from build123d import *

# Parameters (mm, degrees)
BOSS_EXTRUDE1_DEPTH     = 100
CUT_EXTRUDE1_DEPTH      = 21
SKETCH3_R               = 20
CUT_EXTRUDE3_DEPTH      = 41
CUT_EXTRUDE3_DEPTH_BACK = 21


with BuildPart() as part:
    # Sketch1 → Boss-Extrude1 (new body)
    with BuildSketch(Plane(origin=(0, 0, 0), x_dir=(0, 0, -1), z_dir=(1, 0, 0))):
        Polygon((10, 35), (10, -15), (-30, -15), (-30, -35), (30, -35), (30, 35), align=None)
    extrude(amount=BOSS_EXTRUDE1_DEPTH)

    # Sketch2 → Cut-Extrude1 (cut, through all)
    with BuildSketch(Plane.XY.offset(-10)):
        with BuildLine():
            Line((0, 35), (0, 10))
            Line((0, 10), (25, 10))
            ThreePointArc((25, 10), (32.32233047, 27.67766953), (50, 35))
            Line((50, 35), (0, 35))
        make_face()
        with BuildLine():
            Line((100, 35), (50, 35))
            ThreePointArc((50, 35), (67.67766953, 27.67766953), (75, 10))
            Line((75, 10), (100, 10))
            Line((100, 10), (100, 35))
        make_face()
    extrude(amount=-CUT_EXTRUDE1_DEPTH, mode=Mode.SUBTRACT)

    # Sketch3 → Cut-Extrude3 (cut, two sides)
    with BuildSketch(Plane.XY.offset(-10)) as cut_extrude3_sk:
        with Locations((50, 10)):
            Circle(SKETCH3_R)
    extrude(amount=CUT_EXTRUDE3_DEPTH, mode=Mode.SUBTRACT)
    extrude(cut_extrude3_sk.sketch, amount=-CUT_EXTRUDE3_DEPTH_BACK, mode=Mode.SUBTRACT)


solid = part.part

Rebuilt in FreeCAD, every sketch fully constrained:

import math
import FreeCAD as App
import Part
import Sketcher
from FreeCAD import Vector
Q = App.Units.Quantity


def add_polygon(sketch, points):
    """Adds a closed chain of lines whose ends are joined by coincident constraints."""
    first, n = sketch.GeometryCount, len(points)
    for a, b in zip(points, points[1:] + points[:1]):
        sketch.addGeometry(Part.LineSegment(App.Vector(*a, 0), App.Vector(*b, 0)), False)
    for i in range(n):
        sketch.addConstraint(Sketcher.Constraint("Coincident", first + i, 2, first + (i + 1) % n, 1))

doc = App.newDocument("Part")
body = doc.addObject("PartDesign::Body", "Body")

sketch1 = doc.addObject("Sketcher::SketchObject", "Sketch")
body.addObject(sketch1)
sketch1.AttachmentSupport = (doc.YZ_Plane, [""])
sketch1.MapMode = "FlatFace"
add_polygon(sketch1, [(35, -10), (-15, -10), (-15, 30), (-35, 30), (-35, -30), (35, -30)])
sketch1.addConstraint([
    Sketcher.Constraint("Horizontal", 0),
    Sketcher.Constraint("Vertical", 1),
    Sketcher.Constraint("Horizontal", 2),
    Sketcher.Constraint("Vertical", 3),
    Sketcher.Constraint("Horizontal", 4),
    Sketcher.Constraint("Vertical", 5),
    Sketcher.Constraint("Symmetric", 2, 2, 4, 2, -1, 1),
    Sketcher.Constraint("Equal", 2, 5),
    Sketcher.Constraint("DistanceX", 0, 2, 0, 1, Q("50 mm")),
    Sketcher.Constraint("DistanceX", 2, 2, 2, 1, Q("20 mm")),
    Sketcher.Constraint("DistanceY", 1, 1, 1, 2, Q("40 mm")),
])
pad1 = doc.addObject("PartDesign::Pad", "Pad")
body.addObject(pad1)
pad1.Profile = sketch1
pad1.Length = 100

sketch2 = doc.addObject("Sketcher::SketchObject", "Sketch001")
body.addObject(sketch2)
sketch2.AttachmentSupport = (doc.XY_Plane, [""])
sketch2.MapMode = "FlatFace"
sketch2.AttachmentOffset = App.Placement(Vector(0, 0, -10), App.Rotation())
sketch2.addGeometry([
    Part.LineSegment(Vector(0, 35, 0), Vector(0, 10, 0)),
    Part.LineSegment(Vector(0, 10, 0), Vector(25, 10, 0)),
    Part.ArcOfCircle(Part.Circle(Vector(50, 10, 0), Vector(0, 0, 1), 25), math.radians(90), math.radians(180)),
    Part.LineSegment(Vector(50, 35, 0), Vector(0, 35, 0)),
    Part.LineSegment(Vector(100, 35, 0), Vector(50, 35, 0)),
    Part.ArcOfCircle(Part.Circle(Vector(50, 10, 0), Vector(0, 0, 1), 25), math.radians(0), math.radians(90)),
    Part.LineSegment(Vector(75, 10, 0), Vector(100, 10, 0)),
    Part.LineSegment(Vector(100, 10, 0), Vector(100, 35, 0)),
], False)
sketch2.addConstraint([
    Sketcher.Constraint("Coincident", 0, 2, 1, 1),
    Sketcher.Constraint("Coincident", 1, 2, 2, 2),
    Sketcher.Constraint("Tangent", 2, 1, 3, 1),
    Sketcher.Constraint("Coincident", 3, 2, 0, 1),
    Sketcher.Constraint("Tangent", 4, 2, 5, 2),
    Sketcher.Constraint("Coincident", 5, 1, 6, 1),
    Sketcher.Constraint("Coincident", 6, 2, 7, 1),
    Sketcher.Constraint("Coincident", 7, 2, 4, 1),
    Sketcher.Constraint("Vertical", 0),
    Sketcher.Constraint("Horizontal", 1),
    Sketcher.Constraint("Horizontal", 3),
    Sketcher.Constraint("Horizontal", 4),
    Sketcher.Constraint("Horizontal", 6),
    Sketcher.Constraint("Vertical", 7),
    Sketcher.Constraint("Coincident", 5, 3, 2, 3),
    Sketcher.Constraint("Equal", 2, 5),
    Sketcher.Constraint("PointOnObject", 0, 2, -2),
    Sketcher.Constraint("Horizontal", 5, 3, 0, 2),
    Sketcher.Constraint("Horizontal", 1, 2, 5, 1),
    Sketcher.Constraint("Equal", 3, 4),
    Sketcher.Constraint("Equal", 6, 0),
    Sketcher.Constraint("Radius", 2, Q("25 mm")),
    Sketcher.Constraint("DistanceY", -1, 1, 2, 3, Q("10 mm")),
])
pocket1 = doc.addObject("PartDesign::Pocket", "Pocket")
body.addObject(pocket1)
pocket1.Profile = sketch2
pocket1.Type = "ThroughAll"

sketch3 = doc.addObject("Sketcher::SketchObject", "Sketch002")
body.addObject(sketch3)
sketch3.AttachmentSupport = (doc.XY_Plane, [""])
sketch3.MapMode = "FlatFace"
sketch3.AttachmentOffset = App.Placement(Vector(0, 0, -10), App.Rotation())
sketch3.addGeometry(Part.Circle(Vector(50, 10, 0), Vector(0, 0, 1), 20), False)
sketch3.addConstraint([
    Sketcher.Constraint("Diameter", 0, Q("40 mm")),
    Sketcher.Constraint("DistanceX", -1, 1, 0, 3, Q("50 mm")),
    Sketcher.Constraint("DistanceY", -1, 1, 0, 3, Q("10 mm")),
])
pocket2 = doc.addObject("PartDesign::Pocket", "Pocket001")
body.addObject(pocket2)
pocket2.Profile = sketch3
pocket2.Type = "ThroughAll"
pocket2.Midplane = True

doc.recompute()
